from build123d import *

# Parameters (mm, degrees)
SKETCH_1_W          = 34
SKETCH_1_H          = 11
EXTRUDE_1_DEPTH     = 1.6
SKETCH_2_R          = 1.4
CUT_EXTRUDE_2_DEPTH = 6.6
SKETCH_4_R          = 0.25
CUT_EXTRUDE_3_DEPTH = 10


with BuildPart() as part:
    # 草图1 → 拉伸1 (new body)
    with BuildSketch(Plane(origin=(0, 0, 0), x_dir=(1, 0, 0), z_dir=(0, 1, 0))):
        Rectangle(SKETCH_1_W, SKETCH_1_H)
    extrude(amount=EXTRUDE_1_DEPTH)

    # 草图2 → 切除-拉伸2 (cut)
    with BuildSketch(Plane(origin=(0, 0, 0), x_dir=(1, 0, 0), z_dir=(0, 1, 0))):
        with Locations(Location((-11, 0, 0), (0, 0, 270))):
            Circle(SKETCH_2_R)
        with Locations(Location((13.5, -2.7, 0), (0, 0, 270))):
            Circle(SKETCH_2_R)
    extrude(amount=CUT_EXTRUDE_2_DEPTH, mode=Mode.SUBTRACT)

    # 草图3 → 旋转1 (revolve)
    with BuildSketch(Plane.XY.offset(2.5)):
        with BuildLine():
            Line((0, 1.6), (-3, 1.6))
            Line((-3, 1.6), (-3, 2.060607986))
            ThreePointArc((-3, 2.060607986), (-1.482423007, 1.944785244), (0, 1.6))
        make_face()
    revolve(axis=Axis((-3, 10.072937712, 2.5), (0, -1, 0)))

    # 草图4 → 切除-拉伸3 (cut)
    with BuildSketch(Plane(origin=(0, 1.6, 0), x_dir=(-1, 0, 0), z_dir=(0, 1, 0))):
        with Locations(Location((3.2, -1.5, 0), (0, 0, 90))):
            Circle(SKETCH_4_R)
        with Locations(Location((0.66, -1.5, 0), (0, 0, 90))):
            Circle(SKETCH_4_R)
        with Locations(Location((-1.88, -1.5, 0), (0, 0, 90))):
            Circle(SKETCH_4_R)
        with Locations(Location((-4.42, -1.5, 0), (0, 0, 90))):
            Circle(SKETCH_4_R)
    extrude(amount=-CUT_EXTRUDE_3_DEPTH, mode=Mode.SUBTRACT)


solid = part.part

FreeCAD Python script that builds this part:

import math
import FreeCAD as App
import Part
import Sketcher
from FreeCAD import Vector
Q = App.Units.Quantity

doc = App.newDocument("Part")
params = doc.addObject("Spreadsheet::Sheet", "Params")
for row, (alias, value) in enumerate([
    ("sketch1_width", "34 mm"),
    ("sketch1_height", "11 mm"),
    ("pad1_length", "1.6 mm"),
    ("sketch2_diameter", "2.8 mm"),
    ("pocket1_length", "6.6 mm"),
    ("sketch3_radius", "10 mm"),
    ("sketch3_width", "3 mm"),
    ("revolution_angle", "360 deg"),
    ("sketch4_diameter", "0.5 mm"),
    ("pocket2_length", "10 mm"),
], start=1):
    params.set(f"A{row}", alias)
    params.set(f"B{row}", "=" + value)
    params.setAlias(f"B{row}", alias)

body = doc.addObject("PartDesign::Body", "Body")

sketch1 = doc.addObject("Sketcher::SketchObject", "Sketch")
body.addObject(sketch1)
sketch1.AttachmentSupport = (doc.XZ_Plane, [""])
sketch1.MapMode = "FlatFace"
sketch1.addGeometry(Part.LineSegment(Vector(-17, -5.5, 0), Vector(-17, 5.5, 0)), False)
sketch1.addGeometry(Part.LineSegment(Vector(-17, 5.5, 0), Vector(17, 5.5, 0)), False)
sketch1.addGeometry(Part.LineSegment(Vector(17, 5.5, 0), Vector(17, -5.5, 0)), False)
sketch1.addGeometry(Part.LineSegment(Vector(17, -5.5, 0), Vector(-17, -5.5, 0)), False)
sketch1.addConstraint(Sketcher.Constraint("Coincident", 0, 2, 1, 1))
sketch1.addConstraint(Sketcher.Constraint("Coincident", 1, 2, 2, 1))
sketch1.addConstraint(Sketcher.Constraint("Coincident", 2, 2, 3, 1))
sketch1.addConstraint(Sketcher.Constraint("Coincident", 3, 2, 0, 1))
sketch1.addConstraint(Sketcher.Constraint("Vertical", 0))
sketch1.addConstraint(Sketcher.Constraint("Horizontal", 1))
sketch1.addConstraint(Sketcher.Constraint("Vertical", 2))
sketch1.addConstraint(Sketcher.Constraint("Horizontal", 3))
sketch1.addConstraint(Sketcher.Constraint("Symmetric", 0, 2, 2, 2, -1, 1))
sketch1.addConstraint(Sketcher.Constraint("DistanceX", 1, 1, 1, 2, Q("34 mm")))
sketch1.addConstraint(Sketcher.Constraint("DistanceY", 0, 1, 0, 2, Q("11 mm")))
sketch1.setExpression("Constraints[9]", "Params.sketch1_width")
sketch1.setExpression("Constraints[10]", "Params.sketch1_height")
pad1 = doc.addObject("PartDesign::Pad", "Pad")
body.addObject(pad1)
pad1.Profile = sketch1
pad1.setExpression("Length", "Params.pad1_length")
pad1.Reversed = True

sketch2 = doc.addObject("Sketcher::SketchObject", "Sketch001")
body.addObject(sketch2)
sketch2.AttachmentSupport = (doc.XZ_Plane, [""])
sketch2.MapMode = "FlatFace"
sketch2.addGeometry(Part.Circle(Vector(-11, 0, 0), Vector(0, 0, 1), 1.4), False)
sketch2.addGeometry(Part.Circle(Vector(13.5, 2.7, 0), Vector(0, 0, 1), 1.4), False)
sketch2.addConstraint(Sketcher.Constraint("Equal", 0, 1))
sketch2.addConstraint(Sketcher.Constraint("PointOnObject", 0, 3, -1))
sketch2.addConstraint(Sketcher.Constraint("Diameter", 0, Q("2.8 mm")))
sketch2.addConstraint(Sketcher.Constraint("DistanceX", 0, 3, -1, 1, Q("11 mm")))
sketch2.addConstraint(Sketcher.Constraint("DistanceX", -1, 1, 1, 3, Q("13.5 mm")))
sketch2.addConstraint(Sketcher.Constraint("DistanceY", -1, 1, 1, 3, Q("2.7 mm")))
sketch2.setExpression("Constraints[2]", "Params.sketch2_diameter")
pocket1 = doc.addObject("PartDesign::Pocket", "Pocket")
body.addObject(pocket1)
pocket1.Profile = sketch2
pocket1.setExpression("Length", "Params.pocket1_length")

sketch3 = doc.addObject("Sketcher::SketchObject", "Sketch002")
body.addObject(sketch3)
sketch3.AttachmentSupport = (doc.XY_Plane, [""])
sketch3.MapMode = "FlatFace"
sketch3.AttachmentOffset = App.Placement(Vector(0, 0, 2.5), App.Rotation())
sketch3.addGeometry(Part.LineSegment(Vector(-3, 1.6, 0), Vector(0, 1.6, 0)), False)
sketch3.addGeometry(Part.ArcOfCircle(Part.Circle(Vector(-3, -7.939392, 0), Vector(0, 0, 1), 10), math.radians(72.542397), math.radians(90)), False)
sketch3.addGeometry(Part.LineSegment(Vector(-3, 2.060608, 0), Vector(-3, 1.6, 0)), False)
sketch3.addGeometry(Part.LineSegment(Vector(-3, 2.060608, 0), Vector(-3, -7.939392, 0)), True)
sketch3.addConstraint(Sketcher.Constraint("Coincident", 0, 2, 1, 1))
sketch3.addConstraint(Sketcher.Constraint("Coincident", 1, 2, 2, 1))
sketch3.addConstraint(Sketcher.Constraint("Coincident", 2, 2, 0, 1))
sketch3.addConstraint(Sketcher.Constraint("Horizontal", 0))
sketch3.addConstraint(Sketcher.Constraint("Vertical", 2))
sketch3.addConstraint(Sketcher.Constraint("Vertical", 3))
sketch3.addConstraint(Sketcher.Constraint("Coincident", 3, 1, 1, 2))
sketch3.addConstraint(Sketcher.Constraint("Coincident", 3, 2, 1, 3))
sketch3.addConstraint(Sketcher.Constraint("PointOnObject", 0, 2, -2))
sketch3.addConstraint(Sketcher.Constraint("Radius", 1, Q("10 mm")))
sketch3.addConstraint(Sketcher.Constraint("DistanceX", 0, 1, 0, 2, Q("3 mm")))
sketch3.addConstraint(Sketcher.Constraint("DistanceY", -1, 1, 0, 2, Q("1.6 mm")))
sketch3.setExpression("Constraints[9]", "Params.sketch3_radius")
sketch3.setExpression("Constraints[10]", "Params.sketch3_width")
revolution = doc.addObject("PartDesign::Revolution", "Revolution")
body.addObject(revolution)
revolution.Profile = sketch3
revolution.ReferenceAxis = (sketch3, ["Axis0"])
revolution.setExpression("Angle", "Params.revolution_angle")

sketch4 = doc.addObject("Sketcher::SketchObject", "Sketch003")
body.addObject(sketch4)
sketch4.AttachmentSupport = (doc.XZ_Plane, [""])
sketch4.MapMode = "FlatFace"
sketch4.AttachmentOffset = App.Placement(Vector(0, 0, -1.6), App.Rotation())
sketch4.addGeometry(Part.Circle(Vector(-3.2, -1.5, 0), Vector(0, 0, 1), 0.25), False)
sketch4.addGeometry(Part.Circle(Vector(-0.66, -1.5, 0), Vector(0, 0, 1), 0.25), False)
sketch4.addGeometry(Part.Circle(Vector(1.88, -1.5, 0), Vector(0, 0, 1), 0.25), False)
sketch4.addGeometry(Part.Circle(Vector(4.42, -1.5, 0), Vector(0, 0, 1), 0.25), False)
sketch4.addConstraint(Sketcher.Constraint("Equal", 0, 1))
sketch4.addConstraint(Sketcher.Constraint("Equal", 1, 2))
sketch4.addConstraint(Sketcher.Constraint("Equal", 2, 3))
sketch4.addConstraint(Sketcher.Constraint("Horizontal", 0, 3, 1, 3))
sketch4.addConstraint(Sketcher.Constraint("Horizontal", 1, 3, 2, 3))
sketch4.addConstraint(Sketcher.Constraint("Horizontal", 2, 3, 3, 3))
sketch4.addConstraint(Sketcher.Constraint("Diameter", 0, Q("0.5 mm")))
sketch4.addConstraint(Sketcher.Constraint("DistanceX", 0, 3, -1, 1, Q("3.2 mm")))
sketch4.addConstraint(Sketcher.Constraint("DistanceY", 0, 3, -1, 1, Q("1.5 mm")))
sketch4.addConstraint(Sketcher.Constraint("DistanceX", 1, 3, -1, 1, Q("0.66 mm")))
sketch4.addConstraint(Sketcher.Constraint("DistanceX", -1, 1, 2, 3, Q("1.88 mm")))
sketch4.addConstraint(Sketcher.Constraint("DistanceX", -1, 1, 3, 3, Q("4.42 mm")))
sketch4.setExpression("Constraints[6]", "Params.sketch4_diameter")
pocket2 = doc.addObject("PartDesign::Pocket", "Pocket001")
body.addObject(pocket2)
pocket2.Profile = sketch4
pocket2.setExpression("Length", "Params.pocket2_length")
pocket2.Reversed = True

doc.recompute()
